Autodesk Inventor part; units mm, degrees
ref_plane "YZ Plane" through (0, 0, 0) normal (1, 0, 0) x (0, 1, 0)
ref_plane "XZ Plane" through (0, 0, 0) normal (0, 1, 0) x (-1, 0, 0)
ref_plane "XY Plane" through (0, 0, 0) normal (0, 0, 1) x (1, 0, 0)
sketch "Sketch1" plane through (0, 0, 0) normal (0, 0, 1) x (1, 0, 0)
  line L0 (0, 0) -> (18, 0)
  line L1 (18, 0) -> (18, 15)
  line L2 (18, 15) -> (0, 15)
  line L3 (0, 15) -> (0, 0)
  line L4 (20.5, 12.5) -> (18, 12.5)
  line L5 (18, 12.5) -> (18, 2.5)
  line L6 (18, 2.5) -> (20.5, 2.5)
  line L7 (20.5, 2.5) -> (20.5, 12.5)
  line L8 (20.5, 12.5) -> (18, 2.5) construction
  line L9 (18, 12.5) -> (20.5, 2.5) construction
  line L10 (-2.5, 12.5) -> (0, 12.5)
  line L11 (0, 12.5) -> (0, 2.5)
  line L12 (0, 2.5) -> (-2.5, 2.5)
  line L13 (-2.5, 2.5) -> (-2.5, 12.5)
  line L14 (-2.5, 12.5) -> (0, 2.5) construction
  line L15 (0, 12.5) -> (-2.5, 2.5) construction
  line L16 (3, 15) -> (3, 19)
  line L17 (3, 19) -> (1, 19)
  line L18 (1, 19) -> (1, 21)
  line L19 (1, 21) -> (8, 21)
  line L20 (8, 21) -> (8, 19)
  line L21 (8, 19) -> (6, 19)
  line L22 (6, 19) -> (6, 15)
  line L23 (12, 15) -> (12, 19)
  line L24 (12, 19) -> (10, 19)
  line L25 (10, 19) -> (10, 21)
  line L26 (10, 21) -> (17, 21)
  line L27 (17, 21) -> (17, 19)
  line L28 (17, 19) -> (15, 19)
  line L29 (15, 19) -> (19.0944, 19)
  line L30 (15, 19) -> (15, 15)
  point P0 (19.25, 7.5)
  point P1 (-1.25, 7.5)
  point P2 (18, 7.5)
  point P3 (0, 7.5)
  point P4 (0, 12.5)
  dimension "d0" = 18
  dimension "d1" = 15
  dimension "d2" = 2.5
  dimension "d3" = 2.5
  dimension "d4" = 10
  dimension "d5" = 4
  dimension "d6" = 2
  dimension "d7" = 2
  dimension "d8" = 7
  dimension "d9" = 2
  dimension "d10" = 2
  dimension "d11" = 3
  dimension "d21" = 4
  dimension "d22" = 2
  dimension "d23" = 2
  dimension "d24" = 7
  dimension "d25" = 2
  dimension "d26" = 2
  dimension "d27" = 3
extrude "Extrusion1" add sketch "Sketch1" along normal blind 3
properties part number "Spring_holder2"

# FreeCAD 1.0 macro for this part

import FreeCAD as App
import Part
import Sketcher

V = App.Vector
Q = App.Units.Quantity


def add_polygon(sketch, points):
    """Adds a closed chain of lines whose ends are joined by coincident constraints."""
    first, n = sketch.GeometryCount, len(points)
    for a, b in zip(points, points[1:] + points[:1]):
        sketch.addGeometry(Part.LineSegment(App.Vector(*a, 0), App.Vector(*b, 0)), False)
    for i in range(n):
        sketch.addConstraint(Sketcher.Constraint("Coincident", first + i, 2, first + (i + 1) % n, 1))

doc = App.newDocument("Part")
body = doc.addObject("PartDesign::Body", "Body")

sketch1 = doc.addObject("Sketcher::SketchObject", "Sketch")
body.addObject(sketch1)
sketch1.AttachmentSupport = (doc.XY_Plane, [""])
sketch1.MapMode = "FlatFace"
add_polygon(sketch1, [(0, 2.5), (0, 0), (18, 0), (18, 2.5), (20.5, 2.5), (20.5, 12.5), (18, 12.5), (18, 15), (15, 15), (15, 19), (17, 19), (17, 21), (10, 21), (10, 19), (12, 19), (12, 15), (6, 15), (6, 19), (8, 19), (8, 21), (1, 21), (1, 19), (3, 19), (3, 15), (0, 15), (0, 12.5), (-2.5, 12.5), (-2.5, 2.5)])
sketch1.addConstraint(Sketcher.Constraint("Vertical", 0))
sketch1.addConstraint(Sketcher.Constraint("Horizontal", 1))
sketch1.addConstraint(Sketcher.Constraint("Vertical", 2))
sketch1.addConstraint(Sketcher.Constraint("Horizontal", 3))
sketch1.addConstraint(Sketcher.Constraint("Vertical", 4))
sketch1.addConstraint(Sketcher.Constraint("Horizontal", 5))
sketch1.addConstraint(Sketcher.Constraint("Vertical", 6))
sketch1.addConstraint(Sketcher.Constraint("Horizontal", 7))
sketch1.addConstraint(Sketcher.Constraint("Vertical", 8))
sketch1.addConstraint(Sketcher.Constraint("Horizontal", 9))
sketch1.addConstraint(Sketcher.Constraint("Vertical", 10))
sketch1.addConstraint(Sketcher.Constraint("Horizontal", 11))
sketch1.addConstraint(Sketcher.Constraint("Vertical", 12))
sketch1.addConstraint(Sketcher.Constraint("Horizontal", 13))
sketch1.addConstraint(Sketcher.Constraint("Vertical", 14))
sketch1.addConstraint(Sketcher.Constraint("Horizontal", 15))
sketch1.addConstraint(Sketcher.Constraint("Vertical", 16))
sketch1.addConstraint(Sketcher.Constraint("Horizontal", 17))
sketch1.addConstraint(Sketcher.Constraint("Vertical", 18))
sketch1.addConstraint(Sketcher.Constraint("Horizontal", 19))
sketch1.addConstraint(Sketcher.Constraint("Vertical", 20))
sketch1.addConstraint(Sketcher.Constraint("Horizontal", 21))
sketch1.addConstraint(Sketcher.Constraint("Vertical", 22))
sketch1.addConstraint(Sketcher.Constraint("Horizontal", 23))
sketch1.addConstraint(Sketcher.Constraint("Vertical", 24))
sketch1.addConstraint(Sketcher.Constraint("Horizontal", 25))
sketch1.addConstraint(Sketcher.Constraint("Vertical", 26))
sketch1.addConstraint(Sketcher.Constraint("Horizontal", 27))
sketch1.addConstraint(Sketcher.Constraint("Coincident", 0, 2, -1, 1))
sketch1.addConstraint(Sketcher.Constraint("PointOnObject", 23, 2, -2))
sketch1.addConstraint(Sketcher.Constraint("Horizontal", 9, 2, 12, 2))
sketch1.addConstraint(Sketcher.Constraint("Horizontal", 7, 2, 14, 2))
sketch1.addConstraint(Sketcher.Constraint("Horizontal", 13, 2, 16, 2))
sketch1.addConstraint(Sketcher.Constraint("Horizontal", 11, 2, 18, 2))
sketch1.addConstraint(Sketcher.Constraint("Horizontal", 17, 2, 20, 2))
sketch1.addConstraint(Sketcher.Constraint("Horizontal", 15, 2, 22, 2))
sketch1.addConstraint(Sketcher.Constraint("Horizontal", 5, 2, 24, 2))
sketch1.addConstraint(Sketcher.Constraint("Horizontal", 3, 2, 26, 2))
sketch1.addConstraint(Sketcher.Constraint("Vertical", 2, 2, 5, 2))
sketch1.addConstraint(Sketcher.Constraint("Equal", 9, 13))
sketch1.addConstraint(Sketcher.Constraint("Equal", 13, 17))
sketch1.addConstraint(Sketcher.Constraint("Equal", 11, 19))
sketch1.addConstraint(Sketcher.Constraint("Equal", 17, 21))
sketch1.addConstraint(Sketcher.Constraint("Equal", 7, 23))
sketch1.addConstraint(Sketcher.Constraint("Equal", 5, 25))
sketch1.addConstraint(Sketcher.Constraint("Equal", 27, 0))
sketch1.addConstraint(Sketcher.Constraint("Equal", 2, 6))
sketch1.addConstraint(Sketcher.Constraint("Equal", 21, 10))
sketch1.addConstraint(Sketcher.Constraint("DistanceX", 1, 1, 1, 2, Q("18 mm")))
sketch1.addConstraint(Sketcher.Constraint("DistanceX", 7, 2, 7, 1, Q("3 mm")))
sketch1.addConstraint(Sketcher.Constraint("DistanceX", 9, 1, 9, 2, Q("2 mm")))
sketch1.addConstraint(Sketcher.Constraint("DistanceX", 11, 2, 11, 1, Q("7 mm")))
sketch1.addConstraint(Sketcher.Constraint("DistanceY", 4, 1, 4, 2, Q("10 mm")))
sketch1.addConstraint(Sketcher.Constraint("DistanceY", 8, 1, 8, 2, Q("4 mm")))
sketch1.addConstraint(Sketcher.Constraint("DistanceX", 3, 1, 3, 2, Q("2.5 mm")))
pad1 = doc.addObject("PartDesign::Pad", "Pad")
body.addObject(pad1)
pad1.Profile = sketch1
pad1.Length = 3

doc.recompute()
